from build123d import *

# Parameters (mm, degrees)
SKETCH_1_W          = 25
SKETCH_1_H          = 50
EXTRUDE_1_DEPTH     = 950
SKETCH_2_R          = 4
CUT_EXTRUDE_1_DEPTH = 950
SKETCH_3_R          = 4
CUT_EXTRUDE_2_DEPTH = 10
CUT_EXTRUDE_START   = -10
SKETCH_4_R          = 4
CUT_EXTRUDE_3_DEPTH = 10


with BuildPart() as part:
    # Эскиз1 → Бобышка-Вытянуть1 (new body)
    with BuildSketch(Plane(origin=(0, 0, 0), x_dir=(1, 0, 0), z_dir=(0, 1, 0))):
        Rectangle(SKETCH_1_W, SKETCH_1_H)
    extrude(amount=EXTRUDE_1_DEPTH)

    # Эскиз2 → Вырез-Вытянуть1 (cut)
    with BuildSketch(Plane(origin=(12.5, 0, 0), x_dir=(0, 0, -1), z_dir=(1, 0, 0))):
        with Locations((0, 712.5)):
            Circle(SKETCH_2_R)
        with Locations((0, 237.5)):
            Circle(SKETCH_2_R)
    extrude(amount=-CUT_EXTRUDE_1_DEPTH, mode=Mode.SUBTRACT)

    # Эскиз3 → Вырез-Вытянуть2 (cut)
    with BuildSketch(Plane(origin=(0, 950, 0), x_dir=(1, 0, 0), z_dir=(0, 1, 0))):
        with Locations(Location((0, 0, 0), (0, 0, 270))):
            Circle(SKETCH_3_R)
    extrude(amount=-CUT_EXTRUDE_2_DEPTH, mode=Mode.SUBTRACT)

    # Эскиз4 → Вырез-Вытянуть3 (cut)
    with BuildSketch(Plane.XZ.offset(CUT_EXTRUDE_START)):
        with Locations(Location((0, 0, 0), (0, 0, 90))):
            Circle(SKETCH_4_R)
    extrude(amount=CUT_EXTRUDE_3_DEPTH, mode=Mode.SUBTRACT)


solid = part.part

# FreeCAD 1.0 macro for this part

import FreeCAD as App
import Part
import Sketcher
Q = App.Units.Quantity

doc = App.newDocument("Part")
body = doc.addObject("PartDesign::Body", "Body")

# Sketch on XZ plane
sketch1 = body.newObject("Sketcher::SketchObject", "Sketch")
sketch1.AttachmentSupport = (doc.getObject("XZ_Plane"), [""])
sketch1.MapMode = "FlatFace"
sketch1.addGeometry([
    Part.LineSegment(App.Vector(-12, -25, 0), App.Vector(-12, 25, 0)),
    Part.LineSegment(App.Vector(-12, 25, 0), App.Vector(12, 25, 0)),
    Part.LineSegment(App.Vector(12, 25, 0), App.Vector(12, -25, 0)),
    Part.LineSegment(App.Vector(12, -25, 0), App.Vector(-12, -25, 0)),
], False)
sketch1.addConstraint([
    Sketcher.Constraint("Coincident", 0, 2, 1, 1),
    Sketcher.Constraint("Coincident", 1, 2, 2, 1),
    Sketcher.Constraint("Coincident", 2, 2, 3, 1),
    Sketcher.Constraint("Coincident", 3, 2, 0, 1),
    Sketcher.Constraint("Vertical", 0),
    Sketcher.Constraint("Horizontal", 1),
    Sketcher.Constraint("Vertical", 2),
    Sketcher.Constraint("Horizontal", 3),
    Sketcher.Constraint("Symmetric", 0, 2, 2, 2, -1, 1),
    Sketcher.Constraint("DistanceX", 1, 1, 1, 2, Q("25 mm")),
    Sketcher.Constraint("DistanceY", 0, 1, 0, 2, Q("50 mm")),
])
pad1 = body.newObject("PartDesign::Pad", "Pad")
pad1.Profile = sketch1
pad1.Length = 950
pad1.Reversed = True

# Sketch on YZ plane
sketch2 = body.newObject("Sketcher::SketchObject", "Sketch001")
sketch2.AttachmentSupport = (doc.getObject("YZ_Plane"), [""])
sketch2.MapMode = "FlatFace"
sketch2.AttachmentOffset = App.Placement(App.Vector(0, 0, 12.5), App.Rotation())
sketch2.addGeometry([
    Part.Circle(App.Vector(712.5, 0, 0), App.Vector(0, 0, 1), 4),
    Part.Circle(App.Vector(237.5, 0, 0), App.Vector(0, 0, 1), 4),
], False)
sketch2.addConstraint([
    Sketcher.Constraint("Equal", 0, 1),
    Sketcher.Constraint("PointOnObject", 0, 3, -1),
    Sketcher.Constraint("PointOnObject", 1, 3, -1),
    Sketcher.Constraint("Diameter", 0, Q("8 mm")),
    Sketcher.Constraint("DistanceX", 1, 3, 0, 3, Q("475 mm")),
    Sketcher.Constraint("DistanceX", -1, 1, 0, 3, Q("712.5 mm")),
])
pocket1 = body.newObject("PartDesign::Pocket", "Pocket")
pocket1.Profile = sketch2
pocket1.Length = 950

# Sketch on XZ plane
sketch3 = body.newObject("Sketcher::SketchObject", "Sketch002")
sketch3.AttachmentSupport = (doc.getObject("XZ_Plane"), [""])
sketch3.MapMode = "FlatFace"
sketch3.AttachmentOffset = App.Placement(App.Vector(0, 0, -950), App.Rotation())
sketch3.addGeometry(Part.Circle(App.Vector(0, 0, 0), App.Vector(0, 0, 1), 4), False)
sketch3.addConstraint([
    Sketcher.Constraint("Coincident", 0, 3, -1, 1),
    Sketcher.Constraint("Diameter", 0, Q("8 mm")),
])
pocket2 = body.newObject("PartDesign::Pocket", "Pocket001")
pocket2.Profile = sketch3
pocket2.Length = 10
pocket2.Reversed = True

# Sketch on XZ plane
sketch4 = body.newObject("Sketcher::SketchObject", "Sketch003")
sketch4.AttachmentSupport = (doc.getObject("XZ_Plane"), [""])
sketch4.MapMode = "FlatFace"
sketch4.AttachmentOffset = App.Placement(App.Vector(0, 0, -10), App.Rotation())
sketch4.addGeometry(Part.Circle(App.Vector(0, 0, 0), App.Vector(0, 0, 1), 4), False)
sketch4.addConstraint([
    Sketcher.Constraint("Coincident", 0, 3, -1, 1),
    Sketcher.Constraint("Diameter", 0, Q("8 mm")),
])
pocket3 = body.newObject("PartDesign::Pocket", "Pocket002")
pocket3.Profile = sketch4
pocket3.Length = 10
pocket3.Reversed = True

doc.recompute()
